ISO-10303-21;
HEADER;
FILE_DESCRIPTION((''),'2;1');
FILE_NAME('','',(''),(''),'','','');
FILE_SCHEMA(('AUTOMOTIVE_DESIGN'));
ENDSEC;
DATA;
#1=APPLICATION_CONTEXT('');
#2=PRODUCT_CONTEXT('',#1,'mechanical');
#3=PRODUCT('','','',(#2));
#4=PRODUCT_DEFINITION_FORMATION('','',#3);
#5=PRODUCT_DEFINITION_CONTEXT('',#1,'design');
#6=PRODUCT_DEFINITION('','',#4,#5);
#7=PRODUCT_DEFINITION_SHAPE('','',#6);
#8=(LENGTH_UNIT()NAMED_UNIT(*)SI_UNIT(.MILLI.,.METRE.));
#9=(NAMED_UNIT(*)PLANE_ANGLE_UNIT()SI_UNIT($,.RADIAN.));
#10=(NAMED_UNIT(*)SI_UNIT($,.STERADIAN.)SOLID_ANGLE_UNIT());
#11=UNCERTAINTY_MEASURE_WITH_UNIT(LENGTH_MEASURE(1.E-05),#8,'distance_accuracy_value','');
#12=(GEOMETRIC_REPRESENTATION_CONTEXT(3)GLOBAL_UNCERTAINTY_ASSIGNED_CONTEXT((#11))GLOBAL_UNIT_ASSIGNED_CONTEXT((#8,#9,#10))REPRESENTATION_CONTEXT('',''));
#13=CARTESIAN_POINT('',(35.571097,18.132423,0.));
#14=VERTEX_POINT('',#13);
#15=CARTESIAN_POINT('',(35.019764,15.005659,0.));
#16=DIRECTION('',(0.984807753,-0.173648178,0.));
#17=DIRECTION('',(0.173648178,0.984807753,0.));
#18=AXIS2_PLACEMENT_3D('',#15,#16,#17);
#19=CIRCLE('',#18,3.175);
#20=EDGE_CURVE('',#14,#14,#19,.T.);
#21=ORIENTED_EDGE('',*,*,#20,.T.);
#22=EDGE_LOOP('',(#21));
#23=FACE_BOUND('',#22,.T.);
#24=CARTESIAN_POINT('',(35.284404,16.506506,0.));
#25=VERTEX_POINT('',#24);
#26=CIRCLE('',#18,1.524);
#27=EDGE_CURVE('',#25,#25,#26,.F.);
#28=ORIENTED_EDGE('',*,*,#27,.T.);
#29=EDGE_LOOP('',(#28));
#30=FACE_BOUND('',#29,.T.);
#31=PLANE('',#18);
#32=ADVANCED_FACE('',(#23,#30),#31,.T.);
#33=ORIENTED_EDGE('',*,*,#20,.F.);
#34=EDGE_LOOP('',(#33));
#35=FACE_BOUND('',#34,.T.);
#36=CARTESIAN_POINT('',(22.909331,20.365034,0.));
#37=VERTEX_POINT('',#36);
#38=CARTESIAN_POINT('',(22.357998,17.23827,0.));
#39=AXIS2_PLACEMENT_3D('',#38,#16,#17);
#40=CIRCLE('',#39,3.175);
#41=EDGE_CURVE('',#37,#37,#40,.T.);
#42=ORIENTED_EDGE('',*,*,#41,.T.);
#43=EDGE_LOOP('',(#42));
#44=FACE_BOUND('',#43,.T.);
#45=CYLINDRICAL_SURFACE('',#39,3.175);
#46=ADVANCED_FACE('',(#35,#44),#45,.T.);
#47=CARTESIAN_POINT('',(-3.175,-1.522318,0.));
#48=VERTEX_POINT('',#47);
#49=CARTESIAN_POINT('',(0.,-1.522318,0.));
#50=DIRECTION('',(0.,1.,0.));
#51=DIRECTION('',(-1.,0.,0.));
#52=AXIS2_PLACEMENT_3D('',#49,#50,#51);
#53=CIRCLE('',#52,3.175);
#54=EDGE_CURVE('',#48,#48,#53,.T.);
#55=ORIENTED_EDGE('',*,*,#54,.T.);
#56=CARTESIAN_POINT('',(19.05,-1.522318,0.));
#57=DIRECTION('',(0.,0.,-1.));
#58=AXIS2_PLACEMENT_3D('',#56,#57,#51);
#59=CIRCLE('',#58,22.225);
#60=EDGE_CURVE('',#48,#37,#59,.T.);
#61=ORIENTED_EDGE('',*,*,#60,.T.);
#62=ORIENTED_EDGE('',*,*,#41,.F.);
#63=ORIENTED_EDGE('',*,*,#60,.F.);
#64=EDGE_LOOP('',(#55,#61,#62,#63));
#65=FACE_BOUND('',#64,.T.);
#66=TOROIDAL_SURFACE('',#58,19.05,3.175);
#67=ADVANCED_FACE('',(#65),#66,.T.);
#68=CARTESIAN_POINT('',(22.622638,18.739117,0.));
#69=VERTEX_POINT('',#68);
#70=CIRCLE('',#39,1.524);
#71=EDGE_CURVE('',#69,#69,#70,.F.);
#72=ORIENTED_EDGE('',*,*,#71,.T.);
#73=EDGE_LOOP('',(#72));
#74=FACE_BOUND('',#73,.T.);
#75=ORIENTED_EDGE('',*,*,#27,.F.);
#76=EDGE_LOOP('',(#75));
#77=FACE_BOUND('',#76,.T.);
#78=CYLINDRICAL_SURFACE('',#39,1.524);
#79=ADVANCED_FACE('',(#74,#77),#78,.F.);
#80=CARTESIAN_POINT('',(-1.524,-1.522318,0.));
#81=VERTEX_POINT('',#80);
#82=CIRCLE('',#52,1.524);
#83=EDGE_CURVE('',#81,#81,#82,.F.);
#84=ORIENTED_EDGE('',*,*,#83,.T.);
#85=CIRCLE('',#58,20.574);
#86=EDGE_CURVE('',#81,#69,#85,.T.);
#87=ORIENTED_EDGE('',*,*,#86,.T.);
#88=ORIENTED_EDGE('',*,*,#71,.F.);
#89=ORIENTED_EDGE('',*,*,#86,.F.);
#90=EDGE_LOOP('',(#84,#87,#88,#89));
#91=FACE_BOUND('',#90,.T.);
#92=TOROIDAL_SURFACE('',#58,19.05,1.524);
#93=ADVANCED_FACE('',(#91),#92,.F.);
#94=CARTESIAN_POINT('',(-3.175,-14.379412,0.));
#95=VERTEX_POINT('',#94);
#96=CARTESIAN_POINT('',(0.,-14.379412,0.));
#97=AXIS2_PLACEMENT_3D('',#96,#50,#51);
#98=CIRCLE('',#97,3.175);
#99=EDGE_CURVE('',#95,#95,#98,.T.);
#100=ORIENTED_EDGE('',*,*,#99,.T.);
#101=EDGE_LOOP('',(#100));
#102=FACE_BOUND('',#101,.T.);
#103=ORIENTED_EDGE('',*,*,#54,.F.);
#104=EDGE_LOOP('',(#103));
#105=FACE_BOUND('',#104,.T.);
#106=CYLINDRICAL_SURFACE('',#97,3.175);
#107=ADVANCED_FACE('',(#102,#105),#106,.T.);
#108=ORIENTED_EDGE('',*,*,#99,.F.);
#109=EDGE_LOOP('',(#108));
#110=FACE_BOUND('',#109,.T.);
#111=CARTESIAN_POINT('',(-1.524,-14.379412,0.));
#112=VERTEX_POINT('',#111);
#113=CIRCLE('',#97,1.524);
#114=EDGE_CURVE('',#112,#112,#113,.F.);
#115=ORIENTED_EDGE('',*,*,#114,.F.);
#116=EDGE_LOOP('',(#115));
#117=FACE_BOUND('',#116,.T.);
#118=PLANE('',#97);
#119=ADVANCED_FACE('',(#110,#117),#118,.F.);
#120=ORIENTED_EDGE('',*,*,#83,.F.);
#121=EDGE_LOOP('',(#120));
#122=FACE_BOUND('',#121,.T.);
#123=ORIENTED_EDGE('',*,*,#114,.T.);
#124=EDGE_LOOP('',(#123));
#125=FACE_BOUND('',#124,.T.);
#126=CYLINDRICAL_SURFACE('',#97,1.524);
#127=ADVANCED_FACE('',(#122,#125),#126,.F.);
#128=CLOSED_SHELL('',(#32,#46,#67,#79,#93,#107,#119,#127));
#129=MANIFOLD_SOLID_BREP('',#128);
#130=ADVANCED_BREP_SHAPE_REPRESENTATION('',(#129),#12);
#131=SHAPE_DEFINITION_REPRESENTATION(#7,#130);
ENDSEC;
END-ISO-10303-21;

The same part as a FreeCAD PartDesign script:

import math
import FreeCAD as App
import Part
import Sketcher

V = App.Vector
Q = App.Units.Quantity

doc = App.newDocument("Part")
body = doc.addObject("PartDesign::Body", "Body")

sketch1 = body.newObject("Sketcher::SketchObject", "Sketch")
sketch1.Placement = App.Placement(V(35.019764, 15.005659, 0), App.Rotation(V(0, 0, -1), V(0.173648178, 0.984807753, 0), V(0.984807753, -0.173648178, 0), "ZXY"))
sketch1.addGeometry(Part.Circle(V(0, 0, 0), V(0, 0, 1), 3.175), False)
sketch1.addGeometry(Part.Circle(V(0, 0, 0), V(0, 0, 1), 1.524), False)
sketch1.addConstraint(Sketcher.Constraint("Coincident", 0, 3, -1, 1))
sketch1.addConstraint(Sketcher.Constraint("Coincident", 1, 3, -1, 1))
sketch1.addConstraint(Sketcher.Constraint("Diameter", 0, Q("0.25 in")))
sketch1.addConstraint(Sketcher.Constraint("Diameter", 1, Q("0.12 in")))

sketch2 = body.newObject("Sketcher::SketchObject", "Sketch001")
sketch2.AttachmentSupport = (doc.getObject("XY_Plane"), [""])
sketch2.MapMode = "FlatFace"
sketch2.addGeometry(Part.LineSegment(V(0, -14.379412, 0), V(0, -1.522318, 0)), False)
sketch2.addGeometry(Part.ArcOfCircle(Part.Circle(V(19.05, -1.522318, 0), V(0, 0, 1), 19.05), math.radians(80), math.radians(180)), False)
sketch2.addGeometry(Part.LineSegment(V(22.357998, 17.23827, 0), V(35.019764, 15.005659, 0)), False)
sketch2.addConstraint(Sketcher.Constraint("Tangent", 0, 2, 1, 2))
sketch2.addConstraint(Sketcher.Constraint("Tangent", 1, 1, 2, 1))
sketch2.addConstraint(Sketcher.Constraint("Vertical", 0))
sketch2.addConstraint(Sketcher.Constraint("PointOnObject", 0, 1, -2))
sketch2.addConstraint(Sketcher.Constraint("Radius", 1, Q("0.75 in")))
sketch2.addConstraint(Sketcher.Constraint("Angle", 2, Q("-10 deg")))
sketch2.addConstraint(Sketcher.Constraint("DistanceY", 0, 1, 0, 2, 12.857094))
sketch2.addConstraint(Sketcher.Constraint("DistanceY", 0, 1, -1, 1, 14.379412))
sketch2.addConstraint(Sketcher.Constraint("DistanceY", -1, 1, 2, 2, 15.005659))
doc.recompute()

additivepipe = body.newObject("PartDesign::AdditivePipe", "AdditivePipe")
additivepipe.Profile = sketch1
additivepipe.Spine = (sketch2, ["Edge1", "Edge2", "Edge3"])

doc.recompute()
